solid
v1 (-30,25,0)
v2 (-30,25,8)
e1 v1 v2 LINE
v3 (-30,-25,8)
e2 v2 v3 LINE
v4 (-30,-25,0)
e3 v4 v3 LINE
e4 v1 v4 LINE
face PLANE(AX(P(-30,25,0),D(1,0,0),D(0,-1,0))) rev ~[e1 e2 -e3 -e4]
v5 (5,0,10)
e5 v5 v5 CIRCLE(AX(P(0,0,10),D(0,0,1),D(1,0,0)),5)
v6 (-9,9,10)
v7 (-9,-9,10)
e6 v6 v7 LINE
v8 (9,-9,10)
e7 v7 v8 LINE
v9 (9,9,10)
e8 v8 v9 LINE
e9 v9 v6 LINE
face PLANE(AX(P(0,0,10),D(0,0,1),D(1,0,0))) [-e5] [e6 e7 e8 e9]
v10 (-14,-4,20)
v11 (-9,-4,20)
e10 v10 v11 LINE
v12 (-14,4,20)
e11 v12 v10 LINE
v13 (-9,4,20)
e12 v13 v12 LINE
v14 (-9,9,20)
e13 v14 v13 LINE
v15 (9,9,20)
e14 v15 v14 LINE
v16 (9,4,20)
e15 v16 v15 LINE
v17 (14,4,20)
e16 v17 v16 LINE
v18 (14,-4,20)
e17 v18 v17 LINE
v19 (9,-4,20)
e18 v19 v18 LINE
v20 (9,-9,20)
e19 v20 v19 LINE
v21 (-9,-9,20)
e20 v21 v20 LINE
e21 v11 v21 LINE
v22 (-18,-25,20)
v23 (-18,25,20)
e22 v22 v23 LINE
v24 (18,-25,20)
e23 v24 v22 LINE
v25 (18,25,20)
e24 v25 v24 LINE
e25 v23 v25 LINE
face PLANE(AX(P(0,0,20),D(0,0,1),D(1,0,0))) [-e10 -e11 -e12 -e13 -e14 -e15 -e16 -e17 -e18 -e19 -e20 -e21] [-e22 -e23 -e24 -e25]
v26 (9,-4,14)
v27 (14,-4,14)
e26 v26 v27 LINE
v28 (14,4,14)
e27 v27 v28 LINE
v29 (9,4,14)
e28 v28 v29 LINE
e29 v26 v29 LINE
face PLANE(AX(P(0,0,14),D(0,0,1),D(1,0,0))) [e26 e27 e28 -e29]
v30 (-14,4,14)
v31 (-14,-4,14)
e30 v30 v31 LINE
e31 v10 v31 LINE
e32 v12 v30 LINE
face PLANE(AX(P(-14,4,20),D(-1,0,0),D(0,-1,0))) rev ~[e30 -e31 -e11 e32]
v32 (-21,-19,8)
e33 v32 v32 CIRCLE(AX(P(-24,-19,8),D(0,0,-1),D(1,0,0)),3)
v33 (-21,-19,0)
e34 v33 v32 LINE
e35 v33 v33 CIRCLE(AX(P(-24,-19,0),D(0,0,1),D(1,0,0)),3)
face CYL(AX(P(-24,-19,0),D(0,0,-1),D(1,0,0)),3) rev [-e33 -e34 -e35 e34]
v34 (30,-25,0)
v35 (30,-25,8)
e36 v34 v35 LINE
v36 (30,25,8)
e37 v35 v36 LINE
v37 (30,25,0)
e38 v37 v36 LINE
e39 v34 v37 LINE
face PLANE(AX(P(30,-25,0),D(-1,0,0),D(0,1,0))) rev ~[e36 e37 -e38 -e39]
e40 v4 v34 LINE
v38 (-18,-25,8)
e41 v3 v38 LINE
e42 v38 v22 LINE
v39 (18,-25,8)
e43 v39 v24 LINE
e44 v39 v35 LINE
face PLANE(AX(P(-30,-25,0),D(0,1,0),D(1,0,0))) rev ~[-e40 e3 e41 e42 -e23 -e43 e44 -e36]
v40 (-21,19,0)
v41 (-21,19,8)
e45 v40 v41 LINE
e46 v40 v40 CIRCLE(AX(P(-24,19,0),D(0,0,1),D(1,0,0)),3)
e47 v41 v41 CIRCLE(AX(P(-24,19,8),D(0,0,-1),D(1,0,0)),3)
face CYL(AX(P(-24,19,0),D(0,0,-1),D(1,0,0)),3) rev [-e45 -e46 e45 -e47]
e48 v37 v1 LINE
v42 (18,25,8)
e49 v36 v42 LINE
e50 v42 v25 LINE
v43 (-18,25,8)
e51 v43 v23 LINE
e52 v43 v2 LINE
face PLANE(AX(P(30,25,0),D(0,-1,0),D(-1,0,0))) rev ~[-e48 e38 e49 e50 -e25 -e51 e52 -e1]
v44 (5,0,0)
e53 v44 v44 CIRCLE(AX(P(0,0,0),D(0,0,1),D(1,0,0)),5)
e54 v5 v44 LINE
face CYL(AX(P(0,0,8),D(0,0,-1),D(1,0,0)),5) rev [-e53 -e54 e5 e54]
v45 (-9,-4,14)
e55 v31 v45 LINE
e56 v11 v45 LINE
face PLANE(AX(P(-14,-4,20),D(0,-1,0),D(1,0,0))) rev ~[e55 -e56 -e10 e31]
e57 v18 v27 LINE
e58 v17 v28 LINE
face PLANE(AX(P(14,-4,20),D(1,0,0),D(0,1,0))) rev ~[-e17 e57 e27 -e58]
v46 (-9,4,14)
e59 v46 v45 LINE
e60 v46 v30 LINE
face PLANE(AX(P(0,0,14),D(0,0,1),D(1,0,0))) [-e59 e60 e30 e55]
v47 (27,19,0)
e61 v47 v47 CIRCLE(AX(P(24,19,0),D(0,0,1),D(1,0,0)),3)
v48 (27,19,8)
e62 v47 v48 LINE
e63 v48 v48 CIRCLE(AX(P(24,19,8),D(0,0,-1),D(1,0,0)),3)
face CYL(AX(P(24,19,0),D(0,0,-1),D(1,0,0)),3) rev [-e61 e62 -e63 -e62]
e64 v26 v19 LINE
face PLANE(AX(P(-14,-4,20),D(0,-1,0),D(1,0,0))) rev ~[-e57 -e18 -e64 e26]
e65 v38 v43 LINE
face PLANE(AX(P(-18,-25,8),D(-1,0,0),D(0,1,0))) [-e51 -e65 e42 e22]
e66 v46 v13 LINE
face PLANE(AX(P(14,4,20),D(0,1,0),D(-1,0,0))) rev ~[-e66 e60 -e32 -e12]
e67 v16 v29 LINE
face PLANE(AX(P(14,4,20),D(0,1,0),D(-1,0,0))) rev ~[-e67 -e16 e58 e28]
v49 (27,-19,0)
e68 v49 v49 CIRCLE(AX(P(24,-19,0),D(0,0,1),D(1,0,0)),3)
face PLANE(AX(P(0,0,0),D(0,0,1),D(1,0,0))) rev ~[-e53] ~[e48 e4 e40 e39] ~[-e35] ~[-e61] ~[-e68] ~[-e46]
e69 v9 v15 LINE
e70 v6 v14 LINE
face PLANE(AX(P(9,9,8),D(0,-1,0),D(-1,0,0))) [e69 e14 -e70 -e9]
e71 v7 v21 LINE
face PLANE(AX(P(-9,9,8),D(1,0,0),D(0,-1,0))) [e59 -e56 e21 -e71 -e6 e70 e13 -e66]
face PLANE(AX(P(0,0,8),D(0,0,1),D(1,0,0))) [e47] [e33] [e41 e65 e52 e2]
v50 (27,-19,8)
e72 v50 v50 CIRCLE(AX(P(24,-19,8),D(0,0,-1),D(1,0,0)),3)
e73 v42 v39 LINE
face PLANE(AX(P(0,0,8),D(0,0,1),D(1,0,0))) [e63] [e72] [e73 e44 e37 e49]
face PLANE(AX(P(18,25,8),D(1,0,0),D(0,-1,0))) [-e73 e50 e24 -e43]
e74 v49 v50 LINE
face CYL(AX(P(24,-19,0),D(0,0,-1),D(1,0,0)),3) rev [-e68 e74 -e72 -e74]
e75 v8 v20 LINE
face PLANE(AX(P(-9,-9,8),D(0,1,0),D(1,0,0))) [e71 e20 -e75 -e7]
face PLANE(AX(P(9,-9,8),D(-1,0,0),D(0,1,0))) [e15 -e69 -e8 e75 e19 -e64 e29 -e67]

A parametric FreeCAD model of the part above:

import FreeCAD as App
import Part
import Sketcher
Q = App.Units.Quantity

doc = App.newDocument("Part")
params = doc.addObject("Spreadsheet::Sheet", "Params")
for row, (alias, value) in enumerate([
    ("sketch1_diameter", "10 mm"),
    ("sketch1_width", "60 mm"),
    ("sketch1_height", "50 mm"),
    ("pad1_length", "8 mm"),
    ("sketch2_width", "36 mm"),
    ("sketch2_width2", "18 mm"),
    ("sketch2_height", "50 mm"),
    ("pad2_length", "12 mm"),
    ("sketch3_diameter", "10 mm"),
    ("sketch3_width", "18 mm"),
    ("pad3_length", "2 mm"),
    ("sketch4_width", "28 mm"),
    ("sketch4_height", "8 mm"),
    ("pocket1_length", "6 mm"),
    ("sketch5_diameter", "6 mm"),
], start=1):
    params.set(f"A{row}", alias)
    params.set(f"B{row}", "=" + value)
    params.setAlias(f"B{row}", alias)

body = doc.addObject("PartDesign::Body", "Body")

sketch1 = body.newObject("Sketcher::SketchObject", "Sketch")
sketch1.AttachmentSupport = (doc.getObject("XY_Plane"), [""])
sketch1.MapMode = "FlatFace"
sketch1.addGeometry([
    Part.LineSegment(App.Vector(-30, 25, 0), App.Vector(-30, -25, 0)),
    Part.LineSegment(App.Vector(-30, -25, 0), App.Vector(30, -25, 0)),
    Part.LineSegment(App.Vector(30, -25, 0), App.Vector(30, 25, 0)),
    Part.LineSegment(App.Vector(30, 25, 0), App.Vector(-30, 25, 0)),
    Part.Circle(App.Vector(0, 0, 0), App.Vector(0, 0, 1), 5),
], False)
sketch1.addConstraint([
    Sketcher.Constraint("Coincident", 0, 2, 1, 1),
    Sketcher.Constraint("Coincident", 1, 2, 2, 1),
    Sketcher.Constraint("Coincident", 2, 2, 3, 1),
    Sketcher.Constraint("Coincident", 3, 2, 0, 1),
    Sketcher.Constraint("Vertical", 0),
    Sketcher.Constraint("Horizontal", 1),
    Sketcher.Constraint("Vertical", 2),
    Sketcher.Constraint("Horizontal", 3),
    Sketcher.Constraint("Coincident", 4, 3, -1, 1),
    Sketcher.Constraint("Symmetric", 0, 2, 2, 2, -1, 1),
    Sketcher.Constraint("Diameter", 4, Q("10 mm")),
    Sketcher.Constraint("DistanceX", 1, 1, 1, 2, Q("60 mm")),
    Sketcher.Constraint("DistanceY", 0, 2, 0, 1, Q("50 mm")),
])
sketch1.setExpression("Constraints[10]", "Params.sketch1_diameter")
sketch1.setExpression("Constraints[11]", "Params.sketch1_width")
sketch1.setExpression("Constraints[12]", "Params.sketch1_height")
pad1 = body.newObject("PartDesign::Pad", "Pad")
pad1.Profile = sketch1
pad1.setExpression("Length", "Params.pad1_length")

sketch2 = body.newObject("Sketcher::SketchObject", "Sketch001")
sketch2.AttachmentSupport = (doc.getObject("XY_Plane"), [""])
sketch2.MapMode = "FlatFace"
sketch2.AttachmentOffset = App.Placement(App.Vector(0, 0, 8), App.Rotation())
sketch2.addGeometry([
    Part.LineSegment(App.Vector(-18, -25, 0), App.Vector(18, -25, 0)),
    Part.LineSegment(App.Vector(18, -25, 0), App.Vector(18, 25, 0)),
    Part.LineSegment(App.Vector(18, 25, 0), App.Vector(-18, 25, 0)),
    Part.LineSegment(App.Vector(-18, 25, 0), App.Vector(-18, -25, 0)),
    Part.LineSegment(App.Vector(9, -9, 0), App.Vector(-9, -9, 0)),
    Part.LineSegment(App.Vector(-9, -9, 0), App.Vector(-9, 9, 0)),
    Part.LineSegment(App.Vector(-9, 9, 0), App.Vector(9, 9, 0)),
    Part.LineSegment(App.Vector(9, 9, 0), App.Vector(9, -9, 0)),
], False)
sketch2.addConstraint([
    Sketcher.Constraint("Coincident", 0, 2, 1, 1),
    Sketcher.Constraint("Coincident", 1, 2, 2, 1),
    Sketcher.Constraint("Coincident", 2, 2, 3, 1),
    Sketcher.Constraint("Coincident", 3, 2, 0, 1),
    Sketcher.Constraint("Coincident", 4, 2, 5, 1),
    Sketcher.Constraint("Coincident", 5, 2, 6, 1),
    Sketcher.Constraint("Coincident", 6, 2, 7, 1),
    Sketcher.Constraint("Coincident", 7, 2, 4, 1),
    Sketcher.Constraint("Horizontal", 0),
    Sketcher.Constraint("Vertical", 1),
    Sketcher.Constraint("Horizontal", 2),
    Sketcher.Constraint("Vertical", 3),
    Sketcher.Constraint("Horizontal", 4),
    Sketcher.Constraint("Vertical", 5),
    Sketcher.Constraint("Horizontal", 6),
    Sketcher.Constraint("Vertical", 7),
    Sketcher.Constraint("Symmetric", 0, 2, 2, 2, -1, 1),
    Sketcher.Constraint("Symmetric", 4, 2, 6, 2, -1, 1),
    Sketcher.Constraint("Equal", 6, 5),
    Sketcher.Constraint("DistanceX", 0, 1, 0, 2, Q("36 mm")),
    Sketcher.Constraint("DistanceX", 4, 2, 4, 1, Q("18 mm")),
    Sketcher.Constraint("DistanceY", 1, 1, 1, 2, Q("50 mm")),
])
sketch2.setExpression("Constraints[19]", "Params.sketch2_width")
sketch2.setExpression("Constraints[20]", "Params.sketch2_width2")
sketch2.setExpression("Constraints[21]", "Params.sketch2_height")
pad2 = body.newObject("PartDesign::Pad", "Pad001")
pad2.Profile = sketch2
pad2.setExpression("Length", "Params.pad2_length")

sketch3 = body.newObject("Sketcher::SketchObject", "Sketch002")
sketch3.AttachmentSupport = (doc.getObject("XY_Plane"), [""])
sketch3.MapMode = "FlatFace"
sketch3.AttachmentOffset = App.Placement(App.Vector(0, 0, 8), App.Rotation())
sketch3.addGeometry([
    Part.LineSegment(App.Vector(-9, 9, 0), App.Vector(-9, -9, 0)),
    Part.LineSegment(App.Vector(-9, -9, 0), App.Vector(9, -9, 0)),
    Part.LineSegment(App.Vector(9, -9, 0), App.Vector(9, 9, 0)),
    Part.LineSegment(App.Vector(9, 9, 0), App.Vector(-9, 9, 0)),
    Part.Circle(App.Vector(0, 0, 0), App.Vector(0, 0, 1), 5),
], False)
sketch3.addConstraint([
    Sketcher.Constraint("Coincident", 0, 2, 1, 1),
    Sketcher.Constraint("Coincident", 1, 2, 2, 1),
    Sketcher.Constraint("Coincident", 2, 2, 3, 1),
    Sketcher.Constraint("Coincident", 3, 2, 0, 1),
    Sketcher.Constraint("Vertical", 0),
    Sketcher.Constraint("Horizontal", 1),
    Sketcher.Constraint("Vertical", 2),
    Sketcher.Constraint("Horizontal", 3),
    Sketcher.Constraint("Coincident", 4, 3, -1, 1),
    Sketcher.Constraint("Symmetric", 0, 2, 2, 2, -1, 1),
    Sketcher.Constraint("Equal", 3, 0),
    Sketcher.Constraint("Diameter", 4, Q("10 mm")),
    Sketcher.Constraint("DistanceX", 1, 1, 1, 2, Q("18 mm")),
])
sketch3.setExpression("Constraints[11]", "Params.sketch3_diameter")
sketch3.setExpression("Constraints[12]", "Params.sketch3_width")
pad3 = body.newObject("PartDesign::Pad", "Pad002")
pad3.Profile = sketch3
pad3.setExpression("Length", "Params.pad3_length")

sketch4 = body.newObject("Sketcher::SketchObject", "Sketch003")
sketch4.AttachmentSupport = (doc.getObject("XY_Plane"), [""])
sketch4.MapMode = "FlatFace"
sketch4.AttachmentOffset = App.Placement(App.Vector(0, 0, 20), App.Rotation())
sketch4.addGeometry([
    Part.LineSegment(App.Vector(-14, 4, 0), App.Vector(-14, -4, 0)),
    Part.LineSegment(App.Vector(-14, -4, 0), App.Vector(14, -4, 0)),
    Part.LineSegment(App.Vector(14, -4, 0), App.Vector(14, 4, 0)),
    Part.LineSegment(App.Vector(14, 4, 0), App.Vector(-14, 4, 0)),
], False)
sketch4.addConstraint([
    Sketcher.Constraint("Coincident", 0, 2, 1, 1),
    Sketcher.Constraint("Coincident", 1, 2, 2, 1),
    Sketcher.Constraint("Coincident", 2, 2, 3, 1),
    Sketcher.Constraint("Coincident", 3, 2, 0, 1),
    Sketcher.Constraint("Vertical", 0),
    Sketcher.Constraint("Horizontal", 1),
    Sketcher.Constraint("Vertical", 2),
    Sketcher.Constraint("Horizontal", 3),
    Sketcher.Constraint("Symmetric", 0, 2, 2, 2, -1, 1),
    Sketcher.Constraint("DistanceX", 1, 1, 1, 2, Q("28 mm")),
    Sketcher.Constraint("DistanceY", 0, 2, 0, 1, Q("8 mm")),
])
sketch4.setExpression("Constraints[9]", "Params.sketch4_width")
sketch4.setExpression("Constraints[10]", "Params.sketch4_height")
pocket1 = body.newObject("PartDesign::Pocket", "Pocket")
pocket1.Profile = sketch4
pocket1.setExpression("Length", "Params.pocket1_length")

sketch5 = body.newObject("Sketcher::SketchObject", "Sketch004")
sketch5.AttachmentSupport = (doc.getObject("XY_Plane"), [""])
sketch5.MapMode = "FlatFace"
sketch5.addGeometry([
    Part.Circle(App.Vector(24, 19, 0), App.Vector(0, 0, 1), 3),
    Part.Circle(App.Vector(-24, 19, 0), App.Vector(0, 0, 1), 3),
    Part.Circle(App.Vector(24, -19, 0), App.Vector(0, 0, 1), 3),
    Part.Circle(App.Vector(-24, -19, 0), App.Vector(0, 0, 1), 3),
], False)
sketch5.addConstraint([
    Sketcher.Constraint("Equal", 0, 1),
    Sketcher.Constraint("Equal", 1, 2),
    Sketcher.Constraint("Equal", 2, 3),
    Sketcher.Constraint("Symmetric", 1, 3, 2, 3, -1, 1),
    Sketcher.Constraint("Symmetric", 0, 3, 3, 3, -1, 1),
    Sketcher.Constraint("Symmetric", 0, 3, 1, 3, -2),
    Sketcher.Constraint("Diameter", 0, Q("6 mm")),
    Sketcher.Constraint("DistanceX", -1, 1, 0, 3, Q("24 mm")),
    Sketcher.Constraint("DistanceY", -1, 1, 0, 3, Q("19 mm")),
])
sketch5.setExpression("Constraints[6]", "Params.sketch5_diameter")
pocket2 = body.newObject("PartDesign::Pocket", "Pocket001")
pocket2.Profile = sketch5
pocket2.Type = "ThroughAll"
pocket2.Reversed = True

doc.recompute()
